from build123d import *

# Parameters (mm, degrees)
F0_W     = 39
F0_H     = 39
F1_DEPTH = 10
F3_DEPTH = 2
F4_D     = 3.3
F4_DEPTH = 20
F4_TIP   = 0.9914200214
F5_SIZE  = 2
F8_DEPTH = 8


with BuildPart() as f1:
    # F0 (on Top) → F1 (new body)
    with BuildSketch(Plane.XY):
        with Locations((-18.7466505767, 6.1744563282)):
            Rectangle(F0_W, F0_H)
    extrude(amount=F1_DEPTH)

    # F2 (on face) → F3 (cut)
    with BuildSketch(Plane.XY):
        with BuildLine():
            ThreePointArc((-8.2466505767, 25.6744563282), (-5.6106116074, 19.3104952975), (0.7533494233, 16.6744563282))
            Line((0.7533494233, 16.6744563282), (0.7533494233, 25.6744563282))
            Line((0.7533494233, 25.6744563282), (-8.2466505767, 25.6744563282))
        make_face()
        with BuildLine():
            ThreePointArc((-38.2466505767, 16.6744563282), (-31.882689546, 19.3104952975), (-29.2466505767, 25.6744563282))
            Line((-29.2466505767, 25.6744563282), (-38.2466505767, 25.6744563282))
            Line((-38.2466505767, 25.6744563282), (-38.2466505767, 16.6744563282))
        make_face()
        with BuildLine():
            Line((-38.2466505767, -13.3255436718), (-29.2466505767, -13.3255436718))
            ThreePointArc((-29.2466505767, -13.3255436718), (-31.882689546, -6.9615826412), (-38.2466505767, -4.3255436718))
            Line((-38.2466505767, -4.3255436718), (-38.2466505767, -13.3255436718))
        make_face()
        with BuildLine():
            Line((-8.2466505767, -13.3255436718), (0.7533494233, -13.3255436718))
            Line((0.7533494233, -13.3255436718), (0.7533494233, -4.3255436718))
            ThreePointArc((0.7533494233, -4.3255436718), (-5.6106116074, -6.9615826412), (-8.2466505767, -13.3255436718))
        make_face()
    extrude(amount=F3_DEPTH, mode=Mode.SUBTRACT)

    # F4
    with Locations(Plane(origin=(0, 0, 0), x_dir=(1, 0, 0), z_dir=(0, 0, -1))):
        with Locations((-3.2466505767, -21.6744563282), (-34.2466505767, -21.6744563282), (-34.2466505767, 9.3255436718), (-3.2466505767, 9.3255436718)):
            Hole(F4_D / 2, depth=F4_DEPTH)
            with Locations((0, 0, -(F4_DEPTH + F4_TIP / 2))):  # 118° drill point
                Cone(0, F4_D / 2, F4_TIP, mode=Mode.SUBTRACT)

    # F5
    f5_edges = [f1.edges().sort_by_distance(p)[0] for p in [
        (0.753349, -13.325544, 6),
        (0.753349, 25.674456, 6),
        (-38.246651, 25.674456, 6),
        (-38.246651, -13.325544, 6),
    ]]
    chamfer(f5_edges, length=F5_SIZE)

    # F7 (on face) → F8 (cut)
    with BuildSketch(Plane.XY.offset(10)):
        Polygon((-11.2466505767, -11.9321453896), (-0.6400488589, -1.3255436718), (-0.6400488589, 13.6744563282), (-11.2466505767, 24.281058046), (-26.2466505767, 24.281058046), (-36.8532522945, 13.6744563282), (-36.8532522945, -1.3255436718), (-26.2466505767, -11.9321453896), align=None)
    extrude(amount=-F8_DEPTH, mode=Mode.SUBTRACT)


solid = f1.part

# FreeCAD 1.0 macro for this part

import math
import FreeCAD as App
import Part
import Sketcher

V = App.Vector
Q = App.Units.Quantity


def edges_at(feature, points):
    """Names of the edges that pass closest to the given points."""
    edges = feature.Shape.Edges
    near = lambda p: min(range(len(edges)), key=lambda i: edges[i].distToShape(Part.Vertex(*p))[0])
    return sorted({f"Edge{near(p) + 1}" for p in points})

doc = App.newDocument("Part")
body = doc.addObject("PartDesign::Body", "Body")

# Sketch on XY plane
sketch1 = doc.addObject("Sketcher::SketchObject", "Sketch")
body.addObject(sketch1)
sketch1.AttachmentSupport = (doc.XY_Plane, [""])
sketch1.MapMode = "FlatFace"
sketch1.addGeometry(Part.LineSegment(V(-38, 26, 0), V(-38, -13, 0)), False)
sketch1.addGeometry(Part.LineSegment(V(-38, -13, 0), V(1, -13, 0)), False)
sketch1.addGeometry(Part.LineSegment(V(1, -13, 0), V(1, 26, 0)), False)
sketch1.addGeometry(Part.LineSegment(V(1, 26, 0), V(-38, 26, 0)), False)
sketch1.addConstraint(Sketcher.Constraint("Coincident", 0, 2, 1, 1))
sketch1.addConstraint(Sketcher.Constraint("Coincident", 1, 2, 2, 1))
sketch1.addConstraint(Sketcher.Constraint("Coincident", 2, 2, 3, 1))
sketch1.addConstraint(Sketcher.Constraint("Coincident", 3, 2, 0, 1))
sketch1.addConstraint(Sketcher.Constraint("Vertical", 0))
sketch1.addConstraint(Sketcher.Constraint("Horizontal", 1))
sketch1.addConstraint(Sketcher.Constraint("Vertical", 2))
sketch1.addConstraint(Sketcher.Constraint("Horizontal", 3))
sketch1.addConstraint(Sketcher.Constraint("Equal", 3, 0))
sketch1.addConstraint(Sketcher.Constraint("DistanceX", 1, 1, 1, 2, Q("39 mm")))
sketch1.addConstraint(Sketcher.Constraint("DistanceX", 0, 2, -1, 1, Q("38.246651 mm")))
sketch1.addConstraint(Sketcher.Constraint("DistanceY", 0, 2, -1, 1, Q("13.325544 mm")))
pad1 = doc.addObject("PartDesign::Pad", "Pad")
body.addObject(pad1)
pad1.Profile = sketch1
pad1.Length = 10

# Sketch on XY plane
sketch2 = doc.addObject("Sketcher::SketchObject", "Sketch001")
body.addObject(sketch2)
sketch2.AttachmentSupport = (doc.XY_Plane, [""])
sketch2.MapMode = "FlatFace"
sketch2.addGeometry(Part.ArcOfCircle(Part.Circle(V(1, 26, 0), V(0, 0, 1), 9), math.radians(180), math.radians(270)), False)
sketch2.addGeometry(Part.LineSegment(V(1, 17, 0), V(1, 26, 0)), False)
sketch2.addGeometry(Part.LineSegment(V(1, 26, 0), V(-8, 26, 0)), False)
sketch2.addGeometry(Part.ArcOfCircle(Part.Circle(V(-38, 26, 0), V(0, 0, 1), 9), math.radians(-90), math.radians(0)), False)
sketch2.addGeometry(Part.LineSegment(V(-29, 26, 0), V(-38, 26, 0)), False)
sketch2.addGeometry(Part.LineSegment(V(-38, 26, 0), V(-38, 17, 0)), False)
sketch2.addGeometry(Part.LineSegment(V(-38, -13, 0), V(-29, -13, 0)), False)
sketch2.addGeometry(Part.ArcOfCircle(Part.Circle(V(-38, -13, 0), V(0, 0, 1), 9), math.radians(0), math.radians(90)), False)
sketch2.addGeometry(Part.LineSegment(V(-38, -4, 0), V(-38, -13, 0)), False)
sketch2.addGeometry(Part.LineSegment(V(-8, -13, 0), V(1, -13, 0)), False)
sketch2.addGeometry(Part.LineSegment(V(1, -13, 0), V(1, -4, 0)), False)
sketch2.addGeometry(Part.ArcOfCircle(Part.Circle(V(1, -13, 0), V(0, 0, 1), 9), math.radians(90), math.radians(180)), False)
sketch2.addConstraint(Sketcher.Constraint("Coincident", 0, 2, 1, 1))
sketch2.addConstraint(Sketcher.Constraint("Coincident", 1, 2, 2, 1))
sketch2.addConstraint(Sketcher.Constraint("Coincident", 2, 2, 0, 1))
sketch2.addConstraint(Sketcher.Constraint("Coincident", 3, 2, 4, 1))
sketch2.addConstraint(Sketcher.Constraint("Coincident", 4, 2, 5, 1))
sketch2.addConstraint(Sketcher.Constraint("Coincident", 5, 2, 3, 1))
sketch2.addConstraint(Sketcher.Constraint("Coincident", 6, 2, 7, 1))
sketch2.addConstraint(Sketcher.Constraint("Coincident", 7, 2, 8, 1))
sketch2.addConstraint(Sketcher.Constraint("Coincident", 8, 2, 6, 1))
sketch2.addConstraint(Sketcher.Constraint("Coincident", 9, 2, 10, 1))
sketch2.addConstraint(Sketcher.Constraint("Coincident", 10, 2, 11, 1))
sketch2.addConstraint(Sketcher.Constraint("Coincident", 11, 2, 9, 1))
sketch2.addConstraint(Sketcher.Constraint("Vertical", 1))
sketch2.addConstraint(Sketcher.Constraint("Horizontal", 2))
sketch2.addConstraint(Sketcher.Constraint("Horizontal", 4))
sketch2.addConstraint(Sketcher.Constraint("Vertical", 5))
sketch2.addConstraint(Sketcher.Constraint("Horizontal", 6))
sketch2.addConstraint(Sketcher.Constraint("Vertical", 8))
sketch2.addConstraint(Sketcher.Constraint("Horizontal", 9))
sketch2.addConstraint(Sketcher.Constraint("Vertical", 10))
sketch2.addConstraint(Sketcher.Constraint("Coincident", 1, 2, 0, 3))
sketch2.addConstraint(Sketcher.Constraint("Coincident", 4, 2, 3, 3))
sketch2.addConstraint(Sketcher.Constraint("Coincident", 8, 2, 7, 3))
sketch2.addConstraint(Sketcher.Constraint("Coincident", 9, 2, 11, 3))
sketch2.addConstraint(Sketcher.Constraint("Equal", 0, 3))
sketch2.addConstraint(Sketcher.Constraint("Equal", 3, 7))
sketch2.addConstraint(Sketcher.Constraint("Equal", 7, 11))
sketch2.addConstraint(Sketcher.Constraint("Horizontal", 0, 3, 3, 3))
sketch2.addConstraint(Sketcher.Constraint("Horizontal", 7, 3, 11, 3))
sketch2.addConstraint(Sketcher.Constraint("Vertical", 3, 3, 7, 3))
sketch2.addConstraint(Sketcher.Constraint("Vertical", 0, 3, 11, 3))
sketch2.addConstraint(Sketcher.Constraint("Radius", 0, Q("9 mm")))
sketch2.addConstraint(Sketcher.Constraint("DistanceX", 3, 3, 0, 3, Q("39 mm")))
sketch2.addConstraint(Sketcher.Constraint("DistanceY", 7, 3, 3, 3, Q("39 mm")))
sketch2.addConstraint(Sketcher.Constraint("DistanceX", -1, 1, 0, 3, Q("0.753349 mm")))
sketch2.addConstraint(Sketcher.Constraint("DistanceY", -1, 1, 0, 3, Q("25.674456 mm")))
pocket1 = doc.addObject("PartDesign::Pocket", "Pocket")
body.addObject(pocket1)
pocket1.Profile = sketch2
pocket1.Length = 2
pocket1.Reversed = True

# Sketch on XY plane
sketch3 = doc.addObject("Sketcher::SketchObject", "Sketch002")
body.addObject(sketch3)
sketch3.AttachmentSupport = (doc.XY_Plane, [""])
sketch3.MapMode = "FlatFace"
sketch3.addGeometry(Part.Circle(V(-3.2, 21.7, 0), V(0, 0, 1), 1.6), False)
sketch3.addGeometry(Part.Circle(V(-34.2, 21.7, 0), V(0, 0, 1), 1.6), False)
sketch3.addGeometry(Part.Circle(V(-34.2, -9.3, 0), V(0, 0, 1), 1.6), False)
sketch3.addGeometry(Part.Circle(V(-3.2, -9.3, 0), V(0, 0, 1), 1.6), False)
sketch3.addConstraint(Sketcher.Constraint("Equal", 0, 1))
sketch3.addConstraint(Sketcher.Constraint("Equal", 1, 2))
sketch3.addConstraint(Sketcher.Constraint("Equal", 2, 3))
sketch3.addConstraint(Sketcher.Constraint("Horizontal", 0, 3, 1, 3))
sketch3.addConstraint(Sketcher.Constraint("Horizontal", 2, 3, 3, 3))
sketch3.addConstraint(Sketcher.Constraint("Vertical", 1, 3, 2, 3))
sketch3.addConstraint(Sketcher.Constraint("Vertical", 0, 3, 3, 3))
sketch3.addConstraint(Sketcher.Constraint("Diameter", 0, Q("3.3 mm")))
sketch3.addConstraint(Sketcher.Constraint("DistanceX", 1, 3, 0, 3, Q("31 mm")))
sketch3.addConstraint(Sketcher.Constraint("DistanceY", 2, 3, 1, 3, Q("31 mm")))
sketch3.addConstraint(Sketcher.Constraint("DistanceX", 0, 3, -1, 1, Q("3.246651 mm")))
sketch3.addConstraint(Sketcher.Constraint("DistanceY", -1, 1, 0, 3, Q("21.674456 mm")))
doc.recompute()
hole = doc.addObject("PartDesign::Hole", "Hole")
body.addObject(hole)
hole.Profile = sketch3
hole.ThreadType = "None"
hole.Diameter = 3.3
hole.DepthType = "Dimension"
hole.Depth = 20
hole.DrillPoint = "Angled"
hole.DrillPointAngle = 118
hole.Reversed = True
doc.recompute()

chamfer = doc.addObject("PartDesign::Chamfer", "Chamfer")
body.addObject(chamfer)
chamfer.Base = (hole, edges_at(hole, [
    (0.753, -13.326, 6),
    (0.753, 25.674, 6),
    (-38.247, 25.674, 6),
    (-38.247, -13.326, 6),
]))
chamfer.Size = 2

# Sketch on XY plane
sketch4 = doc.addObject("Sketcher::SketchObject", "Sketch003")
body.addObject(sketch4)
sketch4.AttachmentSupport = (doc.XY_Plane, [""])
sketch4.MapMode = "FlatFace"
sketch4.AttachmentOffset = App.Placement(V(0, 0, 10), App.Rotation())
sketch4.addGeometry(Part.LineSegment(V(-11, -12, 0), V(-1, -1, 0)), False)
sketch4.addGeometry(Part.LineSegment(V(-1, -1, 0), V(-1, 14, 0)), False)
sketch4.addGeometry(Part.LineSegment(V(-1, 14, 0), V(-11, 24, 0)), False)
sketch4.addGeometry(Part.LineSegment(V(-11, 24, 0), V(-26, 24, 0)), False)
sketch4.addGeometry(Part.LineSegment(V(-26, 24, 0), V(-37, 14, 0)), False)
sketch4.addGeometry(Part.LineSegment(V(-37, 14, 0), V(-37, -1, 0)), False)
sketch4.addGeometry(Part.LineSegment(V(-37, -1, 0), V(-26, -12, 0)), False)
sketch4.addGeometry(Part.LineSegment(V(-26, -12, 0), V(-11, -12, 0)), False)
sketch4.addConstraint(Sketcher.Constraint("Coincident", 0, 2, 1, 1))
sketch4.addConstraint(Sketcher.Constraint("Coincident", 1, 2, 2, 1))
sketch4.addConstraint(Sketcher.Constraint("Coincident", 2, 2, 3, 1))
sketch4.addConstraint(Sketcher.Constraint("Coincident", 3, 2, 4, 1))
sketch4.addConstraint(Sketcher.Constraint("Coincident", 4, 2, 5, 1))
sketch4.addConstraint(Sketcher.Constraint("Coincident", 5, 2, 6, 1))
sketch4.addConstraint(Sketcher.Constraint("Coincident", 6, 2, 7, 1))
sketch4.addConstraint(Sketcher.Constraint("Coincident", 7, 2, 0, 1))
sketch4.addConstraint(Sketcher.Constraint("Vertical", 1))
sketch4.addConstraint(Sketcher.Constraint("Horizontal", 3))
sketch4.addConstraint(Sketcher.Constraint("Vertical", 5))
sketch4.addConstraint(Sketcher.Constraint("Horizontal", 7))
sketch4.addConstraint(Sketcher.Constraint("Perpendicular", 0, 2))
sketch4.addConstraint(Sketcher.Constraint("Perpendicular", 2, 4))
sketch4.addConstraint(Sketcher.Constraint("Perpendicular", 4, 6))
sketch4.addConstraint(Sketcher.Constraint("Horizontal", 1, 2, 4, 2))
sketch4.addConstraint(Sketcher.Constraint("Horizontal", 0, 2, 5, 2))
sketch4.addConstraint(Sketcher.Constraint("Vertical", 3, 2, 6, 2))
sketch4.addConstraint(Sketcher.Constraint("Vertical", 2, 2, 7, 2))
sketch4.addConstraint(Sketcher.Constraint("Equal", 7, 1))
sketch4.addConstraint(Sketcher.Constraint("DistanceX", 3, 2, 3, 1, Q("15 mm")))
sketch4.addConstraint(Sketcher.Constraint("Distance", 0, Q("15 mm")))
sketch4.addConstraint(Sketcher.Constraint("DistanceX", 0, 2, -1, 1, Q("0.640049 mm")))
sketch4.addConstraint(Sketcher.Constraint("DistanceY", -1, 1, 2, 2, Q("24.281058 mm")))
pocket2 = doc.addObject("PartDesign::Pocket", "Pocket001")
body.addObject(pocket2)
pocket2.Profile = sketch4
pocket2.Length = 8

doc.recompute()
